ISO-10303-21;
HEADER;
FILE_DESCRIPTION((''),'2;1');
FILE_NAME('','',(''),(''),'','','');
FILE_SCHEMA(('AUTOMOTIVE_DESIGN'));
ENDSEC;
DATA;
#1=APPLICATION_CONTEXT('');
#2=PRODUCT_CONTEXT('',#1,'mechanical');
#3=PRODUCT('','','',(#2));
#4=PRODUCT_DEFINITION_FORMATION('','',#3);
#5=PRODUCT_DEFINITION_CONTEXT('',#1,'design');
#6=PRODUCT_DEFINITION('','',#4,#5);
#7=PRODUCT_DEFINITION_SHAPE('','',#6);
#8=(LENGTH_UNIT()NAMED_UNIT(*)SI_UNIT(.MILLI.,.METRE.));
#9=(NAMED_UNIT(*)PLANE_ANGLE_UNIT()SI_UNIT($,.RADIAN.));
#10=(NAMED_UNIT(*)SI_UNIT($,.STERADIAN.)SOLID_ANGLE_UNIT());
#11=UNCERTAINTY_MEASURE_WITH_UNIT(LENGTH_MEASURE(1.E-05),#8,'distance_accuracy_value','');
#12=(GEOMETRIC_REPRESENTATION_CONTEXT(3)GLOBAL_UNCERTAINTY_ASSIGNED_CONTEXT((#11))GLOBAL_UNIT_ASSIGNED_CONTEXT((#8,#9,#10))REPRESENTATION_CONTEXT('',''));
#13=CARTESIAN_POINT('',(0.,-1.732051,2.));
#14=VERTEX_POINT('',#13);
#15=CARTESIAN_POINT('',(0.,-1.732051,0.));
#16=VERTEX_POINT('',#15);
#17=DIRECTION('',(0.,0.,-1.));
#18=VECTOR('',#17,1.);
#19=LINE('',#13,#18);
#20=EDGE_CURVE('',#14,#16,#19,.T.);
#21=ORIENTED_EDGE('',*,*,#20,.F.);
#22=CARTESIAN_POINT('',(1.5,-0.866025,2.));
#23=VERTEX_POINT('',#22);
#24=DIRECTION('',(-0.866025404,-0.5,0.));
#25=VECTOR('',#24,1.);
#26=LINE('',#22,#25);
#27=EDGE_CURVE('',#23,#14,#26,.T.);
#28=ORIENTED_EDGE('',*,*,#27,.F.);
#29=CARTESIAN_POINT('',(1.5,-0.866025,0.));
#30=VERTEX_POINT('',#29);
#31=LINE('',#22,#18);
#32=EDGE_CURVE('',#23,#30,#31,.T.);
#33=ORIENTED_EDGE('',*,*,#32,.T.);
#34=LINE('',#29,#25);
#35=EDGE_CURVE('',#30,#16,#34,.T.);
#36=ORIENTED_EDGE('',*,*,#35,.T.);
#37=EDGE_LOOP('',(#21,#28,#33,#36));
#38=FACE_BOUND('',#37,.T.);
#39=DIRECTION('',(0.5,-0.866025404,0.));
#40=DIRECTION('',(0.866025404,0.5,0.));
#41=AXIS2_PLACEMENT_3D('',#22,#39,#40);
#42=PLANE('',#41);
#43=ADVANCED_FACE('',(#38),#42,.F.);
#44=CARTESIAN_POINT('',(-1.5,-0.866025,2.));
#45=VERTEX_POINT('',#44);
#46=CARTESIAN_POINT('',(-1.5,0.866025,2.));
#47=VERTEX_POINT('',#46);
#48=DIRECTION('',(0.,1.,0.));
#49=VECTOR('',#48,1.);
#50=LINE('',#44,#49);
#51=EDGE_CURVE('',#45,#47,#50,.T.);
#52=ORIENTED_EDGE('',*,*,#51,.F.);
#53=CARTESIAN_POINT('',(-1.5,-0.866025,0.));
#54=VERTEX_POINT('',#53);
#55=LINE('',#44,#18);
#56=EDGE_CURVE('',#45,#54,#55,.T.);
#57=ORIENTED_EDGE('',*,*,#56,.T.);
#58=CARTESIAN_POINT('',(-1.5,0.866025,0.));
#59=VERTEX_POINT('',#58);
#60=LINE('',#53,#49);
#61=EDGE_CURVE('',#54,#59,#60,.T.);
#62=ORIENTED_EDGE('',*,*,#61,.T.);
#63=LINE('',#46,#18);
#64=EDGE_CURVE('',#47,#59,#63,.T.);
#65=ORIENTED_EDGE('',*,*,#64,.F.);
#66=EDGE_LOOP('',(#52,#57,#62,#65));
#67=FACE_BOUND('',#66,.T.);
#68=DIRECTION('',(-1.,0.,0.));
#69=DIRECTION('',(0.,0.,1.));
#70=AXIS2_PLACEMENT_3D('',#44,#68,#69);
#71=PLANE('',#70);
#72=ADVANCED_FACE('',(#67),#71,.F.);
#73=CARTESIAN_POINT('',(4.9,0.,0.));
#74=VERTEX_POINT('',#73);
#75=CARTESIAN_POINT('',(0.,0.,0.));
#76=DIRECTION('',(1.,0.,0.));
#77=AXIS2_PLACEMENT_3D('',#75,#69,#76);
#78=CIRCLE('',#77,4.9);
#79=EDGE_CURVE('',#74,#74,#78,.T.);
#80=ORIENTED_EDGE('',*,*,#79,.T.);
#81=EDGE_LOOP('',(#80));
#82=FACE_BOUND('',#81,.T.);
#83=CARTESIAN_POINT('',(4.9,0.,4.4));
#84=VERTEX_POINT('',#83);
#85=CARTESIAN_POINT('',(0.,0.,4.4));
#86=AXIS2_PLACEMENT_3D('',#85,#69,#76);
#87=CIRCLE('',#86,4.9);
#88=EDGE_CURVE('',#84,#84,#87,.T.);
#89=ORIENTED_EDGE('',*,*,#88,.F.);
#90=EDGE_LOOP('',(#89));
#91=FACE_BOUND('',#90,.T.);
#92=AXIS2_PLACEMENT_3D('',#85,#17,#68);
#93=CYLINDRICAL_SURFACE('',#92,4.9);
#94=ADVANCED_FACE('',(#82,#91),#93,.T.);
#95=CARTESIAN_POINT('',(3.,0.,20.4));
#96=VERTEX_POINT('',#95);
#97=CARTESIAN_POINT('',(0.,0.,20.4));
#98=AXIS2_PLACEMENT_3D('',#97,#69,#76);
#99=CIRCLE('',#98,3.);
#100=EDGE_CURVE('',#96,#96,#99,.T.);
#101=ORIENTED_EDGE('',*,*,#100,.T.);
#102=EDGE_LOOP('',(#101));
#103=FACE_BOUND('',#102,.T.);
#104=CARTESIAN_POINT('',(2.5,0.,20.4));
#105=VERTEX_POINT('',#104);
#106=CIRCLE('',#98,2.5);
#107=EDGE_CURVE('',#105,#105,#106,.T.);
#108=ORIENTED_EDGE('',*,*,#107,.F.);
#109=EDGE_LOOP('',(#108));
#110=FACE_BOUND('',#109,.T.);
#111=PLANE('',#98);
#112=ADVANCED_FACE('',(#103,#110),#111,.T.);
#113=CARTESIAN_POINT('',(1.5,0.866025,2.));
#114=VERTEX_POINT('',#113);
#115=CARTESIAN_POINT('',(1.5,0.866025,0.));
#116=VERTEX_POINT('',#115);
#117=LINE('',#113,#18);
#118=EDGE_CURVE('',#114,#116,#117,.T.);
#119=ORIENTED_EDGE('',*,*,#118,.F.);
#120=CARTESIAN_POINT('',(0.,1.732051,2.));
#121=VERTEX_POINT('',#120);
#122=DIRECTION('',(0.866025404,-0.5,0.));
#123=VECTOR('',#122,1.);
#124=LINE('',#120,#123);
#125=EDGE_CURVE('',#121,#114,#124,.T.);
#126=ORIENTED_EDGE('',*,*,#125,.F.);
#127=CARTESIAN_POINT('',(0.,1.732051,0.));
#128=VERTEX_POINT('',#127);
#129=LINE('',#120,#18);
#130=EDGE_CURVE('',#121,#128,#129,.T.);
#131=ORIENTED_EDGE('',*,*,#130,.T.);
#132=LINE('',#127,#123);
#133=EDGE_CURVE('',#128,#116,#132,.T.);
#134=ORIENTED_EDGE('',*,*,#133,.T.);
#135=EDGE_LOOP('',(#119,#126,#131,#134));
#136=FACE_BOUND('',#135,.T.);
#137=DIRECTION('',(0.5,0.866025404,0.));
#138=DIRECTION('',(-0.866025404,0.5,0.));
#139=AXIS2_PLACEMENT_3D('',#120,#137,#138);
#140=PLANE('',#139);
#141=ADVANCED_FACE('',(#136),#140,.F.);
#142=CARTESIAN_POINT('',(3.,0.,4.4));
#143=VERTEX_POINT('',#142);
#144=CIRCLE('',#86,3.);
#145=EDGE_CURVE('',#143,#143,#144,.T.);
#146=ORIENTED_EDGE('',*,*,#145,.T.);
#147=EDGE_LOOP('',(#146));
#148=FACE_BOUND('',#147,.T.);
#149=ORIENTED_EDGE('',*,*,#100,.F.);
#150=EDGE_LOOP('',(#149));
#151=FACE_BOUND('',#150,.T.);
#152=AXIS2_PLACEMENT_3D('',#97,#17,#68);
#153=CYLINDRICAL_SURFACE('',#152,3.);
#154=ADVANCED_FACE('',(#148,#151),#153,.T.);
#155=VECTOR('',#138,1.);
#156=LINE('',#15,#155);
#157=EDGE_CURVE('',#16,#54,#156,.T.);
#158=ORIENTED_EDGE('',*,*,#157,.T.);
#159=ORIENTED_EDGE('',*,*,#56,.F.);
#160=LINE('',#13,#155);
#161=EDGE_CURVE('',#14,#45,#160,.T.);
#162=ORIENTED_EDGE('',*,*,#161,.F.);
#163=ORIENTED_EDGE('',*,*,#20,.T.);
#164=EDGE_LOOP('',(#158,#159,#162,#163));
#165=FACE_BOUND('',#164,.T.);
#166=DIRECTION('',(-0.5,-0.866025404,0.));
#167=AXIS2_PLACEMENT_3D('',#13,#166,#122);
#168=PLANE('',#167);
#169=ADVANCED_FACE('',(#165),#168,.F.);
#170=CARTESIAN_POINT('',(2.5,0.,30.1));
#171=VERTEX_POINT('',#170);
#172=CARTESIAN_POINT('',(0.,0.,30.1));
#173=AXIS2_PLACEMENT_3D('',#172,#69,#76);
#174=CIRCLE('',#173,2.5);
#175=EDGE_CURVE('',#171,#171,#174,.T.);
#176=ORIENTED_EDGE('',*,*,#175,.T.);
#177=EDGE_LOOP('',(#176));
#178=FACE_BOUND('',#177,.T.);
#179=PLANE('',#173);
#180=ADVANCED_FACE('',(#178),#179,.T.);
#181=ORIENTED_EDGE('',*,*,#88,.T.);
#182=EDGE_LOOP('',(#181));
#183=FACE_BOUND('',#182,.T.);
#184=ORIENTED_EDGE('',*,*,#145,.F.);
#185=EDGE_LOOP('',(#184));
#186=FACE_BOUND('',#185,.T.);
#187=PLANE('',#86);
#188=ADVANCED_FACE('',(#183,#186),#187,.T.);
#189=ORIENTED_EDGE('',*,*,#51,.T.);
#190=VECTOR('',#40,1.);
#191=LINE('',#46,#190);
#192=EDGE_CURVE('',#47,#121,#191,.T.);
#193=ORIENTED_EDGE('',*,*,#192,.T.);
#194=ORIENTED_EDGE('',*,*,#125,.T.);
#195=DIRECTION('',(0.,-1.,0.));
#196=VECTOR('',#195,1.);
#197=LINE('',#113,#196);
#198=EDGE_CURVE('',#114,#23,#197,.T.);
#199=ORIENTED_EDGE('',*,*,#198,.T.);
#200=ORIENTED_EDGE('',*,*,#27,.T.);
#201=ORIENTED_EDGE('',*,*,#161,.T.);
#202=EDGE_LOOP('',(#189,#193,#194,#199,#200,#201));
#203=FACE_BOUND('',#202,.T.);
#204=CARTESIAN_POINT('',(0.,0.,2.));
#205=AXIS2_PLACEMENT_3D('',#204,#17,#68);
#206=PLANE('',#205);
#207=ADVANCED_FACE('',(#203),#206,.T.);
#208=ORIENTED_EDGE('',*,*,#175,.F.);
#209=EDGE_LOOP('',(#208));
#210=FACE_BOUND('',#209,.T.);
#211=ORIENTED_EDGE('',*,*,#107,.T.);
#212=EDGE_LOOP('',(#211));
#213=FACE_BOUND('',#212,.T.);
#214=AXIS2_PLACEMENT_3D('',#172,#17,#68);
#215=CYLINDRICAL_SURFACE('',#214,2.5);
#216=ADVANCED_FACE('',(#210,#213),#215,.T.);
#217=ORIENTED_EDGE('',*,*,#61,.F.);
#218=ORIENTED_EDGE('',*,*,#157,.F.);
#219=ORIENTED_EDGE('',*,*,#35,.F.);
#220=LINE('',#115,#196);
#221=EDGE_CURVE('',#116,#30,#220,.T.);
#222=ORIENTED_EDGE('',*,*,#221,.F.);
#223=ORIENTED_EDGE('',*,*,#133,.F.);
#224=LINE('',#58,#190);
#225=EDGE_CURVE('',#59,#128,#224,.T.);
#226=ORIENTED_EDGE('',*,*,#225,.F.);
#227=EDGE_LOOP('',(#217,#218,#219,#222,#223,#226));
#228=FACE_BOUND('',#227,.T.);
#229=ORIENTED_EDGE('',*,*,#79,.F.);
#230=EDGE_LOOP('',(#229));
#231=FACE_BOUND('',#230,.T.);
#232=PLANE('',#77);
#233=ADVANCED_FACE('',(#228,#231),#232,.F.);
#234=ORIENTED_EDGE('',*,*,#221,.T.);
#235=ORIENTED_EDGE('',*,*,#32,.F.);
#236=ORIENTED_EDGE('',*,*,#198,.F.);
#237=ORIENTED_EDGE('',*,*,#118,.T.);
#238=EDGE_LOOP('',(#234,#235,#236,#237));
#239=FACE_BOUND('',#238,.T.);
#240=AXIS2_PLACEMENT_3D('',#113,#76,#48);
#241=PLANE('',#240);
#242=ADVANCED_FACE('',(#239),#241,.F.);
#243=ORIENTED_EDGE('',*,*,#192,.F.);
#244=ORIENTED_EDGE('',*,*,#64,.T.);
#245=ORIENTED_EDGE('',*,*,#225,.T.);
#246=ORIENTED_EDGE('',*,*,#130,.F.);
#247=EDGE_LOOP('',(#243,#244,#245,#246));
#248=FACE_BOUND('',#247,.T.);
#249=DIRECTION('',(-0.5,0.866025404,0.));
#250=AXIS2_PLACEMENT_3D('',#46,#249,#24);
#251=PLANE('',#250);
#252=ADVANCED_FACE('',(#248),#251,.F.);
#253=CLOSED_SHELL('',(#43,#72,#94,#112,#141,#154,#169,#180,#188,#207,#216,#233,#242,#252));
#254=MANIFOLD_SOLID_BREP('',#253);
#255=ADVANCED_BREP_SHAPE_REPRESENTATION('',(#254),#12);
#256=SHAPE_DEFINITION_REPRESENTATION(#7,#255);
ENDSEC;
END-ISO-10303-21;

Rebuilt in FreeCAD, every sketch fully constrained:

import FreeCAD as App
import Part
import Sketcher
Q = App.Units.Quantity


def add_polygon(sketch, points):
    """Adds a closed chain of lines whose ends are joined by coincident constraints."""
    first, n = sketch.GeometryCount, len(points)
    for a, b in zip(points, points[1:] + points[:1]):
        sketch.addGeometry(Part.LineSegment(App.Vector(*a, 0), App.Vector(*b, 0)), False)
    for i in range(n):
        sketch.addConstraint(Sketcher.Constraint("Coincident", first + i, 2, first + (i + 1) % n, 1))

doc = App.newDocument("Part")
body = doc.addObject("PartDesign::Body", "Body")

# Sketch on XY plane
sketch1 = body.newObject("Sketcher::SketchObject", "Sketch")
sketch1.AttachmentSupport = (doc.getObject("XY_Plane"), [""])
sketch1.MapMode = "FlatFace"
sketch1.addGeometry(Part.Circle(App.Vector(0, 0, 0), App.Vector(0, 0, 1), 4.9), False)
sketch1.addConstraint([
    Sketcher.Constraint("Coincident", 0, 3, -1, 1),
    Sketcher.Constraint("Diameter", 0, 9.8),
])
pad1 = body.newObject("PartDesign::Pad", "Pad")
pad1.Profile = sketch1
pad1.Length = 4.4

# Sketch on XY plane
sketch2 = body.newObject("Sketcher::SketchObject", "Sketch001")
sketch2.AttachmentSupport = (doc.getObject("XY_Plane"), [""])
sketch2.MapMode = "FlatFace"
sketch2.AttachmentOffset = App.Placement(App.Vector(0, 0, 4.4), App.Rotation())
sketch2.addGeometry(Part.Circle(App.Vector(0, 0, 0), App.Vector(0, 0, 1), 3), False)
sketch2.addConstraint([
    Sketcher.Constraint("Coincident", 0, 3, -1, 1),
    Sketcher.Constraint("Diameter", 0, 6.0),
])
pad2 = body.newObject("PartDesign::Pad", "Pad001")
pad2.Profile = sketch2
pad2.Length = 16

# Sketch on XY plane
sketch3 = body.newObject("Sketcher::SketchObject", "Sketch002")
sketch3.AttachmentSupport = (doc.getObject("XY_Plane"), [""])
sketch3.MapMode = "FlatFace"
sketch3.AttachmentOffset = App.Placement(App.Vector(0, 0, 20.4), App.Rotation())
sketch3.addGeometry(Part.Circle(App.Vector(0, 0, 0), App.Vector(0, 0, 1), 2.5), False)
sketch3.addConstraint([
    Sketcher.Constraint("Coincident", 0, 3, -1, 1),
    Sketcher.Constraint("Diameter", 0, 5.0),
])
pad3 = body.newObject("PartDesign::Pad", "Pad002")
pad3.Profile = sketch3
pad3.Length = 9.7

# Sketch on XY plane
sketch4 = body.newObject("Sketcher::SketchObject", "Sketch003")
sketch4.AttachmentSupport = (doc.getObject("XY_Plane"), [""])
sketch4.MapMode = "FlatFace"
add_polygon(sketch4, [(0, 1.7), (1.5, 0.9), (1.5, -0.9), (0, -1.7), (-1.5, -0.9), (-1.5, 0.9)])  # lines 0-5
sketch4.addConstraint([
    Sketcher.Constraint("Vertical", 1),
    Sketcher.Constraint("Vertical", 4),
    Sketcher.Constraint("Symmetric", 0, 2, 3, 2, -1, 1),
    Sketcher.Constraint("Symmetric", 2, 2, 5, 2, -1, 1),
    Sketcher.Constraint("PointOnObject", 2, 2, -2),
    Sketcher.Constraint("Parallel", 2, 5),
    Sketcher.Constraint("Horizontal", 1, 2, 3, 2),
    Sketcher.Constraint("Angle", 0, Q("-30 deg")),
    Sketcher.Constraint("DistanceX", 3, 2, 1, 2, 3.0),
    Sketcher.Constraint("DistanceY", 1, 2, 1, 1, 1.732051),
])
pocket1 = body.newObject("PartDesign::Pocket", "Pocket")
pocket1.Profile = sketch4
pocket1.Length = 2
pocket1.Reversed = True

doc.recompute()
